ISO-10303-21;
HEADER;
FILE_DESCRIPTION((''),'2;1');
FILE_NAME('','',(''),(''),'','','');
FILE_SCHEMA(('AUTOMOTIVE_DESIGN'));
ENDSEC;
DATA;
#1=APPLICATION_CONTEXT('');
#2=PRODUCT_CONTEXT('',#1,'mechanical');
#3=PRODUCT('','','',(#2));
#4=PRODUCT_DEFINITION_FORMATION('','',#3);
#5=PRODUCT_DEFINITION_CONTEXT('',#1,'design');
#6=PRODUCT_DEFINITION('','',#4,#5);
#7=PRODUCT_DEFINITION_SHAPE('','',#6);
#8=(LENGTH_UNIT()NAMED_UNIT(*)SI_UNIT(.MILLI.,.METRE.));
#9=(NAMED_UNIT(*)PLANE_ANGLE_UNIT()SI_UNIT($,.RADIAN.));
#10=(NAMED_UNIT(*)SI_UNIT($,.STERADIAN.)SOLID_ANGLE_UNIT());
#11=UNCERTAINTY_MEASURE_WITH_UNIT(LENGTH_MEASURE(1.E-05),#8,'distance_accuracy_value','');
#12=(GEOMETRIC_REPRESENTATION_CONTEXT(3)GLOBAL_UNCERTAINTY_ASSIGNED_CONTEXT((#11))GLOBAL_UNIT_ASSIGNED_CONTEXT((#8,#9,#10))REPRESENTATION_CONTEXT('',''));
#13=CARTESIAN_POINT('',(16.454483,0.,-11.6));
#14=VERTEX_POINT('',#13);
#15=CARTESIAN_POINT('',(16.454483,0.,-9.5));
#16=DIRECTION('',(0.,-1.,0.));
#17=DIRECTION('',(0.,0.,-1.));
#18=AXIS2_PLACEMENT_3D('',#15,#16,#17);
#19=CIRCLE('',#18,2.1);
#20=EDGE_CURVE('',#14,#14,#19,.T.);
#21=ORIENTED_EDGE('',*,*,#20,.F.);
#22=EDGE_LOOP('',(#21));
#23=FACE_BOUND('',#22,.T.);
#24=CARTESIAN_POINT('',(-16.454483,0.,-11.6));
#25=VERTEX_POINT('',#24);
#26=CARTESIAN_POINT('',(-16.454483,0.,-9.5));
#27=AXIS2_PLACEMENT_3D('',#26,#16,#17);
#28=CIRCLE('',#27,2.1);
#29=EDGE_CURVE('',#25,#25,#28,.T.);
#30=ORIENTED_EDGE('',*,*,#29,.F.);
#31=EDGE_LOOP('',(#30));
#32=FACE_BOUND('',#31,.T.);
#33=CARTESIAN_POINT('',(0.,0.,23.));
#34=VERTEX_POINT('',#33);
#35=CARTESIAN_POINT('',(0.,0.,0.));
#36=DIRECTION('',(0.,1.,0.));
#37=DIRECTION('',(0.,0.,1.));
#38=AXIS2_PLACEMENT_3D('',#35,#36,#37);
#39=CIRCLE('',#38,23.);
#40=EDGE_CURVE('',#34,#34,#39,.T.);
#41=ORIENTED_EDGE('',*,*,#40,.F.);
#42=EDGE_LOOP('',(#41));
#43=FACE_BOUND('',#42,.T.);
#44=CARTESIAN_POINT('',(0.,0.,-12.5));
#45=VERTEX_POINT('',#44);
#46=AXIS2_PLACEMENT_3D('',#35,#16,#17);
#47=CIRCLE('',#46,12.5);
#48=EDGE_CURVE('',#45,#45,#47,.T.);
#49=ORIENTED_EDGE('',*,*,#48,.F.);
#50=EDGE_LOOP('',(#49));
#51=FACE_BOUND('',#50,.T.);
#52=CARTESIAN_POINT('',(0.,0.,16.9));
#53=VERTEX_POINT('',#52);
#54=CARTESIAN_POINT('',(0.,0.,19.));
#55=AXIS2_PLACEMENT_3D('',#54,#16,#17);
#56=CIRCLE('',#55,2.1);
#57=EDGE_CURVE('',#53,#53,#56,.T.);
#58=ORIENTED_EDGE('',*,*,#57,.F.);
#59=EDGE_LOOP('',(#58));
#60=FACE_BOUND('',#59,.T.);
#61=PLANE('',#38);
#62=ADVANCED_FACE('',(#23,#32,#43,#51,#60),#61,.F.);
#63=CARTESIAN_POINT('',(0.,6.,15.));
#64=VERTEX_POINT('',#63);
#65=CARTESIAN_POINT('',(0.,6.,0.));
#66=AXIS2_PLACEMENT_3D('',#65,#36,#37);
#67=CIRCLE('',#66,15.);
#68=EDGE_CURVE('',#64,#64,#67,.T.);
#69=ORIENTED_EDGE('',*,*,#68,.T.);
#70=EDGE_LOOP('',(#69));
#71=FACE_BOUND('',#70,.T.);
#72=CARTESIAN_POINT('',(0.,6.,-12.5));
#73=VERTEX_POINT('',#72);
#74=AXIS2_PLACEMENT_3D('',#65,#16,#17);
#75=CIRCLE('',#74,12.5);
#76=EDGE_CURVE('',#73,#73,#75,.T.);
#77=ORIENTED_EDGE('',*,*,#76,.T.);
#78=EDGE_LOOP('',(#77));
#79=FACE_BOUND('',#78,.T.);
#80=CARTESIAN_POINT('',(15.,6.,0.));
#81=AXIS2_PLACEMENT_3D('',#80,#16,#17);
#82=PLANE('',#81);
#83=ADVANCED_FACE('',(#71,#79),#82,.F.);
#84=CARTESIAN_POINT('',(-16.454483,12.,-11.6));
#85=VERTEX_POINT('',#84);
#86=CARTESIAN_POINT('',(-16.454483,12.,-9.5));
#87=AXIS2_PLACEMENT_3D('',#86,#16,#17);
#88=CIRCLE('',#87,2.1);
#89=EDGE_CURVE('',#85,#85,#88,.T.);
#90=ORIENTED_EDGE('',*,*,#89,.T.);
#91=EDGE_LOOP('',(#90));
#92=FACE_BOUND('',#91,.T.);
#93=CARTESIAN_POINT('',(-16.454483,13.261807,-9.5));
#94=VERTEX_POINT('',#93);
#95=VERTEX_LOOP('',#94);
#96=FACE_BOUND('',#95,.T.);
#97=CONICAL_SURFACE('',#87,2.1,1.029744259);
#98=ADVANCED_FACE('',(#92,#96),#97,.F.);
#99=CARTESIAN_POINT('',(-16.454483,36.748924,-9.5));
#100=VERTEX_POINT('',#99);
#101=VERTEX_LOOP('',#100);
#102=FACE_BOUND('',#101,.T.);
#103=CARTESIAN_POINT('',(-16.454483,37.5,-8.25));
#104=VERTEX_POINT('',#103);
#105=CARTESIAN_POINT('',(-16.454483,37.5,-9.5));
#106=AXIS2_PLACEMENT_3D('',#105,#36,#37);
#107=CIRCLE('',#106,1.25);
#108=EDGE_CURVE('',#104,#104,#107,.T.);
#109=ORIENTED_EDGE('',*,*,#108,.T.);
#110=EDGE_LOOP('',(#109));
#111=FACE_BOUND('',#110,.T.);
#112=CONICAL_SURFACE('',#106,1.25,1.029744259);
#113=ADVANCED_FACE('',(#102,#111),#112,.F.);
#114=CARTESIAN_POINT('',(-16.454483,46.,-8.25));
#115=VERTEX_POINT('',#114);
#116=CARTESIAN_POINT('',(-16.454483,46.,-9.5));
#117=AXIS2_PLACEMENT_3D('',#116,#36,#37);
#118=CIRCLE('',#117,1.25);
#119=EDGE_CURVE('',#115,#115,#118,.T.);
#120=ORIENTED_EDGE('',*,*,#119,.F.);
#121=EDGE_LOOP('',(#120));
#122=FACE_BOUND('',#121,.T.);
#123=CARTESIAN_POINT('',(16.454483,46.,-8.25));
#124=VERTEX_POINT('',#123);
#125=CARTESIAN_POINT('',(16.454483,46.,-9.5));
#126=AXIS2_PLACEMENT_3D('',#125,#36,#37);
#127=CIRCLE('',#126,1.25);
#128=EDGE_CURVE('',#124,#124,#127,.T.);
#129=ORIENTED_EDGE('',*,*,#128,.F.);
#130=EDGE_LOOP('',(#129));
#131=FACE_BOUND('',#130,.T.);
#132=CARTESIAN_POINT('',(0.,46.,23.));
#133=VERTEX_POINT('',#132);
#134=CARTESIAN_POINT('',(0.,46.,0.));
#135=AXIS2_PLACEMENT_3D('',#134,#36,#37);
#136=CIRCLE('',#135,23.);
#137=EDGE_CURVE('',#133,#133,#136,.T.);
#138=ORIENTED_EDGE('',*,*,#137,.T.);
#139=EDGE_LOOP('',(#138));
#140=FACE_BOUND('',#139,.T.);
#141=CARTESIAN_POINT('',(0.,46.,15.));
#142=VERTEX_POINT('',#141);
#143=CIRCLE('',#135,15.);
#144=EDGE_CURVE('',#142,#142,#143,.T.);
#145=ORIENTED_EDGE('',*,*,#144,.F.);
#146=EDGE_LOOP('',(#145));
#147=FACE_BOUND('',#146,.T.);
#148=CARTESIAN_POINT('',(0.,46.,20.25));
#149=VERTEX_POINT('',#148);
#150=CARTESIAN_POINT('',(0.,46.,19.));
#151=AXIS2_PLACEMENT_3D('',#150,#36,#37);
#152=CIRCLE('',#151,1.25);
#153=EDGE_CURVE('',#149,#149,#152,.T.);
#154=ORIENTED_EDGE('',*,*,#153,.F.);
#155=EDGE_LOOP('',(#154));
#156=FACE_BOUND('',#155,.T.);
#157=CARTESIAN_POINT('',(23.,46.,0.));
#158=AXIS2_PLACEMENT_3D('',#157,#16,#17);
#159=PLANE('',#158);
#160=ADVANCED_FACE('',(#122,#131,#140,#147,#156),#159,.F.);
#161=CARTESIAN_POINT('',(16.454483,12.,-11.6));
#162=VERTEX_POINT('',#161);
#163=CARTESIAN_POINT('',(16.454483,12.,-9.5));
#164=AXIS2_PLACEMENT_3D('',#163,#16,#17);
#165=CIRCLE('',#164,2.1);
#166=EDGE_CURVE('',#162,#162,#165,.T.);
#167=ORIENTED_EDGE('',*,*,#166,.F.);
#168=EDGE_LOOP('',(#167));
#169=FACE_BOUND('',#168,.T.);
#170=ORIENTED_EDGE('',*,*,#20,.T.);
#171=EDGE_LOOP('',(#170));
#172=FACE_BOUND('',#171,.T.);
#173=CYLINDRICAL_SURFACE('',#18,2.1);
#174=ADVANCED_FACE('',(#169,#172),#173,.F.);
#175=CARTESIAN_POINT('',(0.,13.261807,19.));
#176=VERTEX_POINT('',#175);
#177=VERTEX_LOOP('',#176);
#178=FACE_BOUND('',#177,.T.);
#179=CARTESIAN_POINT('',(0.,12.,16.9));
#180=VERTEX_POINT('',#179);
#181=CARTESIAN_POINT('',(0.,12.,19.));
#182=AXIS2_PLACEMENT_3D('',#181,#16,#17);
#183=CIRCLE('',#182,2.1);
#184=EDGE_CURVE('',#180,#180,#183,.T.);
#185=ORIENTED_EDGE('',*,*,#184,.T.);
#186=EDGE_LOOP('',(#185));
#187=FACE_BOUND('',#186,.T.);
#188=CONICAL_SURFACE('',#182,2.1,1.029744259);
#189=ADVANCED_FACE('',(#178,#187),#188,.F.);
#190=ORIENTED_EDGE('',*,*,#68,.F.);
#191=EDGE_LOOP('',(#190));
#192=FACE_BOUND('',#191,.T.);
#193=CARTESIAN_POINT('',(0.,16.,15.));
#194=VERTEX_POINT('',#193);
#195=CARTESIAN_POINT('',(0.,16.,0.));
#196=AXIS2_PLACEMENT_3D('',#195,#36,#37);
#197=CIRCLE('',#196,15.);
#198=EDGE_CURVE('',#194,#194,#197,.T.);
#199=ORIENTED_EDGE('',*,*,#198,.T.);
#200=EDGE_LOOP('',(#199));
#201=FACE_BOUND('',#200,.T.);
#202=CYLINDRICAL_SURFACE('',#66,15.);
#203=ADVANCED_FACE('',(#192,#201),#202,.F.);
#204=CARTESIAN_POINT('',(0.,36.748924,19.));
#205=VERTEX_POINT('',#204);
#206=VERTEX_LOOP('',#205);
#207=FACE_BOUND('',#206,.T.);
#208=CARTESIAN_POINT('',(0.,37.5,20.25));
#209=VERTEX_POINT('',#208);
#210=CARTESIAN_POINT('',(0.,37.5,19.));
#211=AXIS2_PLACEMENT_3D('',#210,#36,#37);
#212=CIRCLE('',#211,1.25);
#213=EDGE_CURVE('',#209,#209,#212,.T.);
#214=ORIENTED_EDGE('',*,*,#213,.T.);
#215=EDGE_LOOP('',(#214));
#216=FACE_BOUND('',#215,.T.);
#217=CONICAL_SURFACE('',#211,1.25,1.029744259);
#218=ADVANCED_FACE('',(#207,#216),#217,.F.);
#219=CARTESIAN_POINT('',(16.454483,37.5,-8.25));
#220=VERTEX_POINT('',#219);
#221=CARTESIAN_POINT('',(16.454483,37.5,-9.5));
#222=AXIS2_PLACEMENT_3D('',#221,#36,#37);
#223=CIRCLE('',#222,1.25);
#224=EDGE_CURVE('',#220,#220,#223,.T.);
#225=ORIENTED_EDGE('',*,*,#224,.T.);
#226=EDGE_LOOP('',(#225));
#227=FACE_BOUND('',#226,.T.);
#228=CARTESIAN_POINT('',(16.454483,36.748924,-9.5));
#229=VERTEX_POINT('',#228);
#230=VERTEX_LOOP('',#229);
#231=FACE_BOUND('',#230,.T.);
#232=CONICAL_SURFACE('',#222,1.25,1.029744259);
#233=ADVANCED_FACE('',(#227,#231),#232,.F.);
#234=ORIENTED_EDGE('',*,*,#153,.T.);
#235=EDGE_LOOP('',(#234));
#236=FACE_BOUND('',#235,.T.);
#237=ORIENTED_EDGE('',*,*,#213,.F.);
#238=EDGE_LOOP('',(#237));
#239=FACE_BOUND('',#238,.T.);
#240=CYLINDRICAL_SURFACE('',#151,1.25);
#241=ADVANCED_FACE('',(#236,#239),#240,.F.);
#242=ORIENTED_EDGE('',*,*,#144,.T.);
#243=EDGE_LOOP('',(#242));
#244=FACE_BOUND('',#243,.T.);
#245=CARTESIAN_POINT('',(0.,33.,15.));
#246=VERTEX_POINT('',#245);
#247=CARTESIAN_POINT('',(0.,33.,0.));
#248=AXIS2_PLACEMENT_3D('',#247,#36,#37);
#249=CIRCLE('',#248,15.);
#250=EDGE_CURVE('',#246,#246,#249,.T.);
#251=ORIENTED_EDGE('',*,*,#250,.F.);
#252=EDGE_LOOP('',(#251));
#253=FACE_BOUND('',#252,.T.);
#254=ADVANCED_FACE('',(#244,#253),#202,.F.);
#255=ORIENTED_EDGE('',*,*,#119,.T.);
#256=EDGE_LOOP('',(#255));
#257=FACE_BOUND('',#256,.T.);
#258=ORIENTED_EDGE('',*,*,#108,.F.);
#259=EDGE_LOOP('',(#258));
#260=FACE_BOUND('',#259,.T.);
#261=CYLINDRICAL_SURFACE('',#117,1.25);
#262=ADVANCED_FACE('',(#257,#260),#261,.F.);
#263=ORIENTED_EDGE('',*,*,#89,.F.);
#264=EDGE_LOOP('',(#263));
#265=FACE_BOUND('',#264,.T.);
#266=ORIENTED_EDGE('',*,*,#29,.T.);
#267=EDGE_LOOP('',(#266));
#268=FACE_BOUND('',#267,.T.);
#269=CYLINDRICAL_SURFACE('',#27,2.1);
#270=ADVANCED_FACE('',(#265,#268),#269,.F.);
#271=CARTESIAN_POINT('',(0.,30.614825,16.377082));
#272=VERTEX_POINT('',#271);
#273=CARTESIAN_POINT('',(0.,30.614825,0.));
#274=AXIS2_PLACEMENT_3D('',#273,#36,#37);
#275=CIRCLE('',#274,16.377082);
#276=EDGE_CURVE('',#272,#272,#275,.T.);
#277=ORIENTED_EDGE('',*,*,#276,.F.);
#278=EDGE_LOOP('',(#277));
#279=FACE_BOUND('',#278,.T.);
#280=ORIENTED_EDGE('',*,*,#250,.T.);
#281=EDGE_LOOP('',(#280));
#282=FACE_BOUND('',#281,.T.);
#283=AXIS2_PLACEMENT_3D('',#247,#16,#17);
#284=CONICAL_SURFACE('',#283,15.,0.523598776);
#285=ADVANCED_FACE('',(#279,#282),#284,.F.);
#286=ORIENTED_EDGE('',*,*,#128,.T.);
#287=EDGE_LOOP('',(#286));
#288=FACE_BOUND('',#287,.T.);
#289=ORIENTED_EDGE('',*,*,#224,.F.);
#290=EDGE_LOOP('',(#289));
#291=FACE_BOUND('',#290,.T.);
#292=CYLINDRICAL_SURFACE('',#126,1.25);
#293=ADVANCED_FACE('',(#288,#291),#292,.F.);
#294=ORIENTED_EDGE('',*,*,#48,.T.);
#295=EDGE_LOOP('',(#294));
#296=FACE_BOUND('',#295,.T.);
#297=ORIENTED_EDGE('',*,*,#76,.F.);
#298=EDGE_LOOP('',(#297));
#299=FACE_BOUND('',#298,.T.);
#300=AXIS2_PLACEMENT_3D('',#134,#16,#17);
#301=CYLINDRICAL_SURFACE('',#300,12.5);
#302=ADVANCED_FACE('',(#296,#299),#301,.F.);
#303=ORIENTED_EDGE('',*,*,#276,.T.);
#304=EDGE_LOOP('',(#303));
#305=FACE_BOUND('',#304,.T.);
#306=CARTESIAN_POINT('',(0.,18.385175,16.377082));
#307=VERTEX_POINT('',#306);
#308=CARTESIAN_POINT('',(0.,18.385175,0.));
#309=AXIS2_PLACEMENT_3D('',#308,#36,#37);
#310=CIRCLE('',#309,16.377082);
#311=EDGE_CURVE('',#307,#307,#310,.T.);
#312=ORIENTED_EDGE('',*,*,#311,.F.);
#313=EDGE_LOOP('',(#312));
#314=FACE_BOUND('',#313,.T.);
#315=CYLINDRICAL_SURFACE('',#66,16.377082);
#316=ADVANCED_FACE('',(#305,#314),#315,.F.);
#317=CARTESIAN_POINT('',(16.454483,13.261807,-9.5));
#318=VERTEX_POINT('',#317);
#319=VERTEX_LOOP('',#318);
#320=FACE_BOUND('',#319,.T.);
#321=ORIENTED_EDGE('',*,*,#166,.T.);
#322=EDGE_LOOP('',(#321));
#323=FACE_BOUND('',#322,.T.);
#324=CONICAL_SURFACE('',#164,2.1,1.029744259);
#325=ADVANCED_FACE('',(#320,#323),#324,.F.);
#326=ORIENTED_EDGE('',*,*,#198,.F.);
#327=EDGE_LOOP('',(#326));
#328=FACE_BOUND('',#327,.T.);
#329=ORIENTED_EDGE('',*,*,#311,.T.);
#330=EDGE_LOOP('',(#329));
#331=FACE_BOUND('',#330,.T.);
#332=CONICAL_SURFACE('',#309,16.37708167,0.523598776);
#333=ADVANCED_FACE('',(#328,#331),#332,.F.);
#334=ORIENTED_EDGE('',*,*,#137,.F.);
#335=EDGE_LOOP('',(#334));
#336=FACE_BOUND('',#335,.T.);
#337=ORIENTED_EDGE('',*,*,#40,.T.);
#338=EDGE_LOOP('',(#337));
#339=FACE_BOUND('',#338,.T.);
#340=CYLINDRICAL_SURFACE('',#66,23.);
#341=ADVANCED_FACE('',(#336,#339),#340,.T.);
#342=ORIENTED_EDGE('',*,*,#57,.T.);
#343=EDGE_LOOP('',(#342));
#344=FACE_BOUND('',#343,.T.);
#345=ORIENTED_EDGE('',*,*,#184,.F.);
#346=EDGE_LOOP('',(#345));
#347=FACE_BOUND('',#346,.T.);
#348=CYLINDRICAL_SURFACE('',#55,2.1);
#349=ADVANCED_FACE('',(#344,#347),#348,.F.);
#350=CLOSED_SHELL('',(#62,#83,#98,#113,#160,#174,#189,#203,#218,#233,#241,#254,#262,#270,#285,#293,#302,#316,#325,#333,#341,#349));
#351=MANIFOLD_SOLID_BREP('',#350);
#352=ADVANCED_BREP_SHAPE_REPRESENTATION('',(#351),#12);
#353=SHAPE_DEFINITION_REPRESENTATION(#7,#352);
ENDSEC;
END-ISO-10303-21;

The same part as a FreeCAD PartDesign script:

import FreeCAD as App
import Part
import Sketcher
from FreeCAD import Vector
Q = App.Units.Quantity

doc = App.newDocument("Part")
body = doc.addObject("PartDesign::Body", "Body")

# Sketch on XY plane
sketch1 = doc.addObject("Sketcher::SketchObject", "Sketch")
body.addObject(sketch1)
sketch1.AttachmentSupport = (doc.XY_Plane, [""])
sketch1.MapMode = "FlatFace"
sketch1.addGeometry(Part.LineSegment(Vector(0, 0, 0), Vector(23, 0, 0)), False)
sketch1.addGeometry(Part.LineSegment(Vector(23, 0, 0), Vector(23, 46, 0)), False)
sketch1.addGeometry(Part.LineSegment(Vector(23, 46, 0), Vector(15, 46, 0)), False)
sketch1.addGeometry(Part.LineSegment(Vector(15, 46, 0), Vector(15, 33, 0)), False)
sketch1.addGeometry(Part.LineSegment(Vector(15, 33, 0), Vector(16.4, 30.6, 0)), False)
sketch1.addGeometry(Part.LineSegment(Vector(16.4, 30.6, 0), Vector(16.4, 18.4, 0)), False)
sketch1.addGeometry(Part.LineSegment(Vector(16.4, 18.4, 0), Vector(15, 16, 0)), False)
sketch1.addGeometry(Part.LineSegment(Vector(15, 16, 0), Vector(15, 6, 0)), False)
sketch1.addGeometry(Part.LineSegment(Vector(15, 6, 0), Vector(0, 6, 0)), False)
sketch1.addGeometry(Part.LineSegment(Vector(0, 6, 0), Vector(0, 0, 0)), False)
sketch1.addConstraint(Sketcher.Constraint("Coincident", 0, 2, 1, 1))
sketch1.addConstraint(Sketcher.Constraint("Coincident", 1, 2, 2, 1))
sketch1.addConstraint(Sketcher.Constraint("Coincident", 2, 2, 3, 1))
sketch1.addConstraint(Sketcher.Constraint("Coincident", 3, 2, 4, 1))
sketch1.addConstraint(Sketcher.Constraint("Coincident", 4, 2, 5, 1))
sketch1.addConstraint(Sketcher.Constraint("Coincident", 5, 2, 6, 1))
sketch1.addConstraint(Sketcher.Constraint("Coincident", 6, 2, 7, 1))
sketch1.addConstraint(Sketcher.Constraint("Coincident", 7, 2, 8, 1))
sketch1.addConstraint(Sketcher.Constraint("Coincident", 8, 2, 9, 1))
sketch1.addConstraint(Sketcher.Constraint("Coincident", 9, 2, 0, 1))
sketch1.addConstraint(Sketcher.Constraint("Horizontal", 0))
sketch1.addConstraint(Sketcher.Constraint("Vertical", 1))
sketch1.addConstraint(Sketcher.Constraint("Horizontal", 2))
sketch1.addConstraint(Sketcher.Constraint("Vertical", 3))
sketch1.addConstraint(Sketcher.Constraint("Vertical", 5))
sketch1.addConstraint(Sketcher.Constraint("Vertical", 7))
sketch1.addConstraint(Sketcher.Constraint("Horizontal", 8))
sketch1.addConstraint(Sketcher.Constraint("Vertical", 9))
sketch1.addConstraint(Sketcher.Constraint("Coincident", 9, 2, -1, 1))
sketch1.addConstraint(Sketcher.Constraint("Vertical", 3, 2, 6, 2))
sketch1.addConstraint(Sketcher.Constraint("Equal", 4, 6))
sketch1.addConstraint(Sketcher.Constraint("DistanceX", 0, 1, 0, 2, Q("23 mm")))
sketch1.addConstraint(Sketcher.Constraint("DistanceX", 2, 2, 2, 1, Q("8 mm")))
sketch1.addConstraint(Sketcher.Constraint("DistanceY", 1, 1, 1, 2, Q("46 mm")))
sketch1.addConstraint(Sketcher.Constraint("DistanceY", 3, 2, 3, 1, Q("13 mm")))
sketch1.addConstraint(Sketcher.Constraint("DistanceY", 7, 2, 7, 1, Q("10 mm")))
sketch1.addConstraint(Sketcher.Constraint("DistanceY", 9, 2, 9, 1, Q("6 mm")))
sketch1.addConstraint(Sketcher.Constraint("Angle", 4, Q("-60 deg")))
sketch1.addConstraint(Sketcher.Constraint("DistanceY", 5, 2, 5, 1, Q("12.229649 mm")))
revolution = doc.addObject("PartDesign::Revolution", "Revolution")
body.addObject(revolution)
revolution.Profile = sketch1
revolution.ReferenceAxis = (sketch1, ["V_Axis"])
revolution.Angle = 360

# Sketch on XZ plane
sketch2 = doc.addObject("Sketcher::SketchObject", "Sketch001")
body.addObject(sketch2)
sketch2.AttachmentSupport = (doc.XZ_Plane, [""])
sketch2.MapMode = "FlatFace"
sketch2.addGeometry(Part.Circle(Vector(0, 0, 0), Vector(0, 0, 1), 12), False)
sketch2.addConstraint(Sketcher.Constraint("Coincident", 0, 3, -1, 1))
sketch2.addConstraint(Sketcher.Constraint("Diameter", 0, Q("25 mm")))
pocket1 = doc.addObject("PartDesign::Pocket", "Pocket")
body.addObject(pocket1)
pocket1.Profile = sketch2
pocket1.Type = "ThroughAll"

# Sketch on YZ plane
sketch3 = doc.addObject("Sketcher::SketchObject", "Sketch002")
body.addObject(sketch3)
sketch3.AttachmentSupport = (doc.YZ_Plane, [""])
sketch3.MapMode = "FlatFace"
sketch3.addGeometry(Part.LineSegment(Vector(13.3, 19, 0), Vector(0, 19, 0)), False)
sketch3.addGeometry(Part.LineSegment(Vector(0, 19, 0), Vector(0, 16.9, 0)), False)
sketch3.addGeometry(Part.LineSegment(Vector(0, 16.9, 0), Vector(12, 16.9, 0)), False)
sketch3.addGeometry(Part.LineSegment(Vector(12, 16.9, 0), Vector(13.3, 19, 0)), False)
sketch3.addGeometry(Part.LineSegment(Vector(0, 19, 0), Vector(13.3, 19, 0)), True)  # axis
sketch3.addConstraint(Sketcher.Constraint("Coincident", 0, 2, 1, 1))
sketch3.addConstraint(Sketcher.Constraint("Coincident", 1, 2, 2, 1))
sketch3.addConstraint(Sketcher.Constraint("Coincident", 2, 2, 3, 1))
sketch3.addConstraint(Sketcher.Constraint("Coincident", 3, 2, 0, 1))
sketch3.addConstraint(Sketcher.Constraint("Horizontal", 0))
sketch3.addConstraint(Sketcher.Constraint("Vertical", 1))
sketch3.addConstraint(Sketcher.Constraint("Horizontal", 2))
sketch3.addConstraint(Sketcher.Constraint("Horizontal", 4))
sketch3.addConstraint(Sketcher.Constraint("Coincident", 4, 1, 0, 2))
sketch3.addConstraint(Sketcher.Constraint("PointOnObject", 0, 2, -2))
sketch3.addConstraint(Sketcher.Constraint("Equal", 0, 4))
sketch3.addConstraint(Sketcher.Constraint("DistanceX", 2, 1, 2, 2, Q("12 mm")))
sketch3.addConstraint(Sketcher.Constraint("Angle", 3, Q("59 deg")))
sketch3.addConstraint(Sketcher.Constraint("DistanceY", 1, 2, 1, 1, Q("2.1 mm")))
sketch3.addConstraint(Sketcher.Constraint("DistanceY", -1, 1, 0, 2, Q("19 mm")))
groove = doc.addObject("PartDesign::Groove", "Groove")
body.addObject(groove)
groove.Profile = sketch3
groove.ReferenceAxis = (sketch3, ["Axis0"])
groove.Angle = 360
doc.recompute()

polarpattern = doc.addObject("PartDesign::PolarPattern", "PolarPattern")
body.addObject(polarpattern)
polarpattern.Originals = [groove]
polarpattern.Axis = (doc.Y_Axis, [""])
polarpattern.Angle = 360
polarpattern.Occurrences = 3
body.Tip = polarpattern

# Sketch on YZ plane
sketch4 = doc.addObject("Sketcher::SketchObject", "Sketch003")
body.addObject(sketch4)
sketch4.AttachmentSupport = (doc.YZ_Plane, [""])
sketch4.MapMode = "FlatFace"
sketch4.addGeometry(Part.LineSegment(Vector(36.7, 19, 0), Vector(46, 19, 0)), False)
sketch4.addGeometry(Part.LineSegment(Vector(46, 19, 0), Vector(46, 20.2, 0)), False)
sketch4.addGeometry(Part.LineSegment(Vector(46, 20.2, 0), Vector(37.5, 20.2, 0)), False)
sketch4.addGeometry(Part.LineSegment(Vector(37.5, 20.2, 0), Vector(36.7, 19, 0)), False)
sketch4.addGeometry(Part.LineSegment(Vector(46, 19, 0), Vector(36.7, 19, 0)), True)  # axis
sketch4.addConstraint(Sketcher.Constraint("Coincident", 0, 2, 1, 1))
sketch4.addConstraint(Sketcher.Constraint("Coincident", 1, 2, 2, 1))
sketch4.addConstraint(Sketcher.Constraint("Coincident", 2, 2, 3, 1))
sketch4.addConstraint(Sketcher.Constraint("Coincident", 3, 2, 0, 1))
sketch4.addConstraint(Sketcher.Constraint("Horizontal", 0))
sketch4.addConstraint(Sketcher.Constraint("Vertical", 1))
sketch4.addConstraint(Sketcher.Constraint("Horizontal", 2))
sketch4.addConstraint(Sketcher.Constraint("Horizontal", 4))
sketch4.addConstraint(Sketcher.Constraint("Coincident", 4, 1, 0, 2))
sketch4.addConstraint(Sketcher.Constraint("Equal", 0, 4))
sketch4.addConstraint(Sketcher.Constraint("Angle", 3, Q("-121 deg")))
sketch4.addConstraint(Sketcher.Constraint("DistanceX", 2, 2, 2, 1, Q("8.5 mm")))
sketch4.addConstraint(Sketcher.Constraint("DistanceX", -1, 1, 0, 2, Q("46 mm")))
sketch4.addConstraint(Sketcher.Constraint("DistanceY", -1, 1, 0, 2, Q("19 mm")))
sketch4.addConstraint(Sketcher.Constraint("DistanceY", 1, 1, 1, 2, Q("1.25 mm")))
groove2 = doc.addObject("PartDesign::Groove", "Groove001")
body.addObject(groove2)
groove2.Profile = sketch4
groove2.ReferenceAxis = (sketch4, ["Axis0"])
groove2.Angle = 360
doc.recompute()

polarpattern2 = doc.addObject("PartDesign::PolarPattern", "PolarPattern001")
body.addObject(polarpattern2)
polarpattern2.Originals = [groove2]
polarpattern2.Axis = (doc.Y_Axis, [""])
polarpattern2.Angle = 360
polarpattern2.Occurrences = 3
body.Tip = polarpattern2

doc.recompute()
